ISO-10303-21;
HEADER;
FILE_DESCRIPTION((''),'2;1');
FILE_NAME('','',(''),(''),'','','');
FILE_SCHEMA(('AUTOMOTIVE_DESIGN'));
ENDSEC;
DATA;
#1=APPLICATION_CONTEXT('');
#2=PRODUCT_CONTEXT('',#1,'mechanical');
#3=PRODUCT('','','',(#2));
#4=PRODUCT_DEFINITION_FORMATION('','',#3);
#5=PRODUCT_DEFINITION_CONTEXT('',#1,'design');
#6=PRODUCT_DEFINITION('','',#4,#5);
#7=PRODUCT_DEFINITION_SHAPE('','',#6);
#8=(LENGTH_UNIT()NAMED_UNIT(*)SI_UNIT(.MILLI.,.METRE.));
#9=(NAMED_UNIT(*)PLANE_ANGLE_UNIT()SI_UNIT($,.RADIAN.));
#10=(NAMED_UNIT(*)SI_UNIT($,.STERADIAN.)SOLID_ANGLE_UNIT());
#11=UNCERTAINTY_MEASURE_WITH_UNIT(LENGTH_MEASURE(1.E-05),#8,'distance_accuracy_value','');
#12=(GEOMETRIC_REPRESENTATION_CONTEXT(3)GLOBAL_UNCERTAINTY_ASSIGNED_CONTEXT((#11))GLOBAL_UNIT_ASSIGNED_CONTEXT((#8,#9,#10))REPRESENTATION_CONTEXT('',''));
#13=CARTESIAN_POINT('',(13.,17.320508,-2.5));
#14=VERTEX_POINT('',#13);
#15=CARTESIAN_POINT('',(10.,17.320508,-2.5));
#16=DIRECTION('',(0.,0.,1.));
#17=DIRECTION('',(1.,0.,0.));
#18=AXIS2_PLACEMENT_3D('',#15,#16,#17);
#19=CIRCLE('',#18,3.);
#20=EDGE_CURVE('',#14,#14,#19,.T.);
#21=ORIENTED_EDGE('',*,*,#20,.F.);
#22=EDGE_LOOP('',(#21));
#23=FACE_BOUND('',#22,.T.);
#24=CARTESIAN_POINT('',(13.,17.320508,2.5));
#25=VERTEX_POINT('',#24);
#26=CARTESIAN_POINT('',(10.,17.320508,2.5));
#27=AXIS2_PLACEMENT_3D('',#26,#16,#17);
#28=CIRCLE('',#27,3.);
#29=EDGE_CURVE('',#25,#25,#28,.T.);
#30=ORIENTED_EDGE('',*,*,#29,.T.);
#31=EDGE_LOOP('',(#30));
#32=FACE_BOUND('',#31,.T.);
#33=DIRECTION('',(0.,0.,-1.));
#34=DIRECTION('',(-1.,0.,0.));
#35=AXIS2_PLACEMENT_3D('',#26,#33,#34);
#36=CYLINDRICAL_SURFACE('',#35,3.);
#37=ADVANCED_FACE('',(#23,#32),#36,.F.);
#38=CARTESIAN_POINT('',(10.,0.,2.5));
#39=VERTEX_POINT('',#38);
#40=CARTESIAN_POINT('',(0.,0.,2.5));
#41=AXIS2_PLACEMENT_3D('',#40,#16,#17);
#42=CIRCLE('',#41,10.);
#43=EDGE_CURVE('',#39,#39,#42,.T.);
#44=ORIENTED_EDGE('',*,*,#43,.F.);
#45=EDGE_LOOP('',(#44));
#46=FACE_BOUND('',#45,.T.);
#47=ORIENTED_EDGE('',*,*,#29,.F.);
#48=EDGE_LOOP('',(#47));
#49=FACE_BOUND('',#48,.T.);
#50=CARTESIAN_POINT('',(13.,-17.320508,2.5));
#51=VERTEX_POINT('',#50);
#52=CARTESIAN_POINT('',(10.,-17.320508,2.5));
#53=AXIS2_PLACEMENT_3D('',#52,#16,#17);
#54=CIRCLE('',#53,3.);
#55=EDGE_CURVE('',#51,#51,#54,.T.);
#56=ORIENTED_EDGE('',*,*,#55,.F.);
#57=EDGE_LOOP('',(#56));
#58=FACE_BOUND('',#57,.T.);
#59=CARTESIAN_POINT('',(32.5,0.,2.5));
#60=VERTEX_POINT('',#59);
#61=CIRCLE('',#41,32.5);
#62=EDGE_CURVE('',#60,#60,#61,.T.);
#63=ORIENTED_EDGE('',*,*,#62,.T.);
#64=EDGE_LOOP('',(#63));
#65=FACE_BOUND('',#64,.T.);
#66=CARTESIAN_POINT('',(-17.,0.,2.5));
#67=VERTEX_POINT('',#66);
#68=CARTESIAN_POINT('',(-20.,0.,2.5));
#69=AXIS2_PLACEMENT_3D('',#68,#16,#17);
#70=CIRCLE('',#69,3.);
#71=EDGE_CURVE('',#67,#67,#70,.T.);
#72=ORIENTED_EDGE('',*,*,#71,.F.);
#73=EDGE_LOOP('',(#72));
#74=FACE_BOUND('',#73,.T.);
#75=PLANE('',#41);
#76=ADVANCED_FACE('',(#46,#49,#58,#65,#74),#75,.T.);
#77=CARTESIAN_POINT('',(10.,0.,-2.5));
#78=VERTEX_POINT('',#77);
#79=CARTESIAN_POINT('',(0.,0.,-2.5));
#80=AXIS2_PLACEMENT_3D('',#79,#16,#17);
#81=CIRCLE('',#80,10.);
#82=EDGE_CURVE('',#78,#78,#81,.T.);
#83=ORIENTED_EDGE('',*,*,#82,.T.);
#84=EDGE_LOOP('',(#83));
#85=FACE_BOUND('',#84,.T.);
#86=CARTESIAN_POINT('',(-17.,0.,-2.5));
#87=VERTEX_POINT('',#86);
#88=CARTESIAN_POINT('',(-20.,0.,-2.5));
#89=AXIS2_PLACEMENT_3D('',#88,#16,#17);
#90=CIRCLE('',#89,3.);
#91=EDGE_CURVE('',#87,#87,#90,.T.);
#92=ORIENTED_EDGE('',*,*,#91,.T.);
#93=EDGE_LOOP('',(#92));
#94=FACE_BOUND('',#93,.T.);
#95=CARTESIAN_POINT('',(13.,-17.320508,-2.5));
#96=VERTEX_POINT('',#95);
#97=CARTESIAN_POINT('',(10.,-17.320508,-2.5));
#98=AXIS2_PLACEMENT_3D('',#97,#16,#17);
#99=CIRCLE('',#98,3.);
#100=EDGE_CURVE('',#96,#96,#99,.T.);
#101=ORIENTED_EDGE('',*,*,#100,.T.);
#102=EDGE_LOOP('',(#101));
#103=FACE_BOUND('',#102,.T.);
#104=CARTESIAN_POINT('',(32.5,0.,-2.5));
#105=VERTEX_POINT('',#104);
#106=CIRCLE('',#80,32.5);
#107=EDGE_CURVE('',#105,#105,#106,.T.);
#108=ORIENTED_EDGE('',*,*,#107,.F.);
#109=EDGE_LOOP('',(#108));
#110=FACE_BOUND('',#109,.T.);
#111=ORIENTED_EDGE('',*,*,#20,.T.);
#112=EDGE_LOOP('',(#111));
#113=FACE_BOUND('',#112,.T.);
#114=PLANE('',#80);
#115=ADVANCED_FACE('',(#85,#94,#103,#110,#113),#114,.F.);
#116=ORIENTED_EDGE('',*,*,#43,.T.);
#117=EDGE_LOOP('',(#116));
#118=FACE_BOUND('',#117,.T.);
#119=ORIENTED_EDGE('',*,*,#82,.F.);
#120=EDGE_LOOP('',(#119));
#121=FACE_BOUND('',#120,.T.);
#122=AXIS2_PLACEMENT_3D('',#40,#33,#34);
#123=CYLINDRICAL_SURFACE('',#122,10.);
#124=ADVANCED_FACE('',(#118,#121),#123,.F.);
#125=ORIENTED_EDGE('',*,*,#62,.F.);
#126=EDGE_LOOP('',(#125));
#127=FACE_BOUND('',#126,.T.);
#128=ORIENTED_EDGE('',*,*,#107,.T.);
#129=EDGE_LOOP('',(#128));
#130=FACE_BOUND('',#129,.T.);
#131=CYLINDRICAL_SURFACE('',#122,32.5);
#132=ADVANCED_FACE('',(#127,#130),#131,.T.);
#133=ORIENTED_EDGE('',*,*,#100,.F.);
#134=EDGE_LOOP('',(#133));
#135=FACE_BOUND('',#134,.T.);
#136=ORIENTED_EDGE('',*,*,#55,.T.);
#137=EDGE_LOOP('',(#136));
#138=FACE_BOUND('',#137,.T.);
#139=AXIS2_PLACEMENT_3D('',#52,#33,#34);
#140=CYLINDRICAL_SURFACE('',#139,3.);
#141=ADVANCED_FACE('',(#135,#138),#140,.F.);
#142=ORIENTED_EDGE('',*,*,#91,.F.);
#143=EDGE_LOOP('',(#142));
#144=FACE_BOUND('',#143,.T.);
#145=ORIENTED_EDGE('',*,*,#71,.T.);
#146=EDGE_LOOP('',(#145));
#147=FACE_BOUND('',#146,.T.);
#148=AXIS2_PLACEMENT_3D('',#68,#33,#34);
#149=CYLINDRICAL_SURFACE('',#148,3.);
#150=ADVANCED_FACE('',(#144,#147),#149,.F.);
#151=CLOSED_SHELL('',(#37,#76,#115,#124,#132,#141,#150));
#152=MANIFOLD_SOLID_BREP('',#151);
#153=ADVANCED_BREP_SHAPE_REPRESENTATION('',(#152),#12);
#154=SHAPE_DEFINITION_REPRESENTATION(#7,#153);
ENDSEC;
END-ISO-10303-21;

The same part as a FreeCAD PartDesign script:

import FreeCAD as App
import Part
import Sketcher

V = App.Vector

doc = App.newDocument("Part")
body = doc.addObject("PartDesign::Body", "Body")

sketch1 = body.newObject("Sketcher::SketchObject", "Sketch")
sketch1.AttachmentSupport = (doc.getObject("XY_Plane"), [""])
sketch1.MapMode = "FlatFace"
sketch1.addGeometry([
    Part.Circle(V(0, 0, 0), V(0, 0, 1), 32.5),
    Part.Circle(V(-20, 0, 0), V(0, 0, 1), 3),
    Part.Circle(V(10, -17.3, 0), V(0, 0, 1), 3),
    Part.Circle(V(0, 0, 0), V(0, 0, 1), 10),
    Part.Circle(V(10, 17.3, 0), V(0, 0, 1), 3),
], False)
sketch1.addConstraint([
    Sketcher.Constraint("Coincident", 0, 3, -1, 1),
    Sketcher.Constraint("Coincident", 3, 3, -1, 1),
    Sketcher.Constraint("Equal", 1, 2),
    Sketcher.Constraint("Equal", 2, 4),
    Sketcher.Constraint("Symmetric", 2, 3, 4, 3, -1),
    Sketcher.Constraint("PointOnObject", 1, 3, -1),
    Sketcher.Constraint("Diameter", 0, 65.0),
    Sketcher.Constraint("Diameter", 1, 6.0),
    Sketcher.Constraint("Diameter", 3, 20.0),
    Sketcher.Constraint("DistanceX", 1, 3, -1, 1, 20.0),
    Sketcher.Constraint("DistanceX", -1, 1, 2, 3, 10.0),
    Sketcher.Constraint("DistanceY", 2, 3, -1, 1, 17.320508),
])
pad1 = body.newObject("PartDesign::Pad", "Pad")
pad1.Profile = sketch1
pad1.Length = 5
pad1.Midplane = True

doc.recompute()
